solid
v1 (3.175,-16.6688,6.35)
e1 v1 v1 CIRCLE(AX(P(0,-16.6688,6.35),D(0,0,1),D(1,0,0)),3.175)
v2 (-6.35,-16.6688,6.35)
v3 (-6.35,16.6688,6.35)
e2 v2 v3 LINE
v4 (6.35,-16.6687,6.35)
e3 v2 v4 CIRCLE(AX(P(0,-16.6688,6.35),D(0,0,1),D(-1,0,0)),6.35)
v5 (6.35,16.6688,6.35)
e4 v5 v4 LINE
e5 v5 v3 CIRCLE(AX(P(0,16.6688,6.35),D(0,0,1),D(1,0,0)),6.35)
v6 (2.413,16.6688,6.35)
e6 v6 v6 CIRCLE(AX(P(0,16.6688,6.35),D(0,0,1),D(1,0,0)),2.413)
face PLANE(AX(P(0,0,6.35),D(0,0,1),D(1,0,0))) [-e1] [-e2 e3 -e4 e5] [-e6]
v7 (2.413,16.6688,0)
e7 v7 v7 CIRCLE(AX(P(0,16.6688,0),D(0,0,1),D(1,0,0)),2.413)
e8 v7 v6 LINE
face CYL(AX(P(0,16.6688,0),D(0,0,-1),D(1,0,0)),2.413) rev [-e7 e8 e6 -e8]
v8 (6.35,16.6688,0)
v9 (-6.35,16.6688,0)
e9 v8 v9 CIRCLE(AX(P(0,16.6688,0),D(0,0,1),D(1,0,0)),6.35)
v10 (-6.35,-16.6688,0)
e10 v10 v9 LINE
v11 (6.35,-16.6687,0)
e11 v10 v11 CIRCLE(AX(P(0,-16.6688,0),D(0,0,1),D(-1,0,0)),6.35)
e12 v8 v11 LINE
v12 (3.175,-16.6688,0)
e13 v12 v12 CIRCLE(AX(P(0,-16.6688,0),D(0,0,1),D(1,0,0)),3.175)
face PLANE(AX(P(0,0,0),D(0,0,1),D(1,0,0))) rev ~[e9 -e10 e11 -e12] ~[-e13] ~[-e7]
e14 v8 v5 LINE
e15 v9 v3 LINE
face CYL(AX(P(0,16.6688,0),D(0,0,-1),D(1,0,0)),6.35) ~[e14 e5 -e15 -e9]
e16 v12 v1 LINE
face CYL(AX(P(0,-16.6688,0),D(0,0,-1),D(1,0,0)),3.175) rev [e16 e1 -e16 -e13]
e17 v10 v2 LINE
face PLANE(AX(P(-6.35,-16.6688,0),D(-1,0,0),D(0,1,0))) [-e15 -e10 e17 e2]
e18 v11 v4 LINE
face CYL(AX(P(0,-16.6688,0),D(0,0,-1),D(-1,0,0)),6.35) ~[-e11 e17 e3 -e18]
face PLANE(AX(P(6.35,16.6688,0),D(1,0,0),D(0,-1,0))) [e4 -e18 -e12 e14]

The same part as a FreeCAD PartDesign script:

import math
import FreeCAD as App
import Part
import Sketcher
Q = App.Units.Quantity

doc = App.newDocument("Part")
body = doc.addObject("PartDesign::Body", "Body")

# Sketch on XY plane
sketch1 = body.newObject("Sketcher::SketchObject", "Sketch")
sketch1.AttachmentSupport = (doc.getObject("XY_Plane"), [""])
sketch1.MapMode = "FlatFace"
sketch1.addGeometry(Part.LineSegment(App.Vector(-6.35, 16.6688, 0), App.Vector(-6.35, -16.6688, 0)), False)
sketch1.addGeometry(Part.ArcOfCircle(Part.Circle(App.Vector(0, -16.6688, 0), App.Vector(0, 0, 1), 6.35), math.radians(180), math.radians(360.000902)), False)
sketch1.addGeometry(Part.LineSegment(App.Vector(6.35, -16.6687, 0), App.Vector(6.35, 16.6688, 0)), False)
sketch1.addGeometry(Part.ArcOfCircle(Part.Circle(App.Vector(0, 16.6688, 0), App.Vector(0, 0, 1), 6.35), math.radians(0), math.radians(180)), False)
sketch1.addGeometry(Part.Circle(App.Vector(0, -16.6688, 0), App.Vector(0, 0, 1), 3.175), False)
sketch1.addGeometry(Part.Circle(App.Vector(0, 16.6688, 0), App.Vector(0, 0, 1), 2.413), False)
sketch1.addConstraint(Sketcher.Constraint("Tangent", 0, 2, 1, 1))
sketch1.addConstraint(Sketcher.Constraint("Tangent", 1, 2, 2, 1))
sketch1.addConstraint(Sketcher.Constraint("Tangent", 2, 2, 3, 1))
sketch1.addConstraint(Sketcher.Constraint("Tangent", 3, 2, 0, 1))
sketch1.addConstraint(Sketcher.Constraint("Vertical", 0))
sketch1.addConstraint(Sketcher.Constraint("Vertical", 2))
sketch1.addConstraint(Sketcher.Constraint("Coincident", 4, 3, 1, 3))
sketch1.addConstraint(Sketcher.Constraint("Coincident", 5, 3, 3, 3))
sketch1.addConstraint(Sketcher.Constraint("Symmetric", 1, 3, 3, 3, -1, 1))
sketch1.addConstraint(Sketcher.Constraint("Diameter", 4, Q("0.25 in")))
sketch1.addConstraint(Sketcher.Constraint("Diameter", 5, Q("0.19 in")))
sketch1.addConstraint(Sketcher.Constraint("Radius", 1, Q("0.25 in")))
sketch1.addConstraint(Sketcher.Constraint("DistanceY", 1, 3, -1, 1, Q("0.656252 in")))
pad1 = body.newObject("PartDesign::Pad", "Pad")
pad1.Profile = sketch1
pad1.Length = Q("0.25 in")

doc.recompute()
